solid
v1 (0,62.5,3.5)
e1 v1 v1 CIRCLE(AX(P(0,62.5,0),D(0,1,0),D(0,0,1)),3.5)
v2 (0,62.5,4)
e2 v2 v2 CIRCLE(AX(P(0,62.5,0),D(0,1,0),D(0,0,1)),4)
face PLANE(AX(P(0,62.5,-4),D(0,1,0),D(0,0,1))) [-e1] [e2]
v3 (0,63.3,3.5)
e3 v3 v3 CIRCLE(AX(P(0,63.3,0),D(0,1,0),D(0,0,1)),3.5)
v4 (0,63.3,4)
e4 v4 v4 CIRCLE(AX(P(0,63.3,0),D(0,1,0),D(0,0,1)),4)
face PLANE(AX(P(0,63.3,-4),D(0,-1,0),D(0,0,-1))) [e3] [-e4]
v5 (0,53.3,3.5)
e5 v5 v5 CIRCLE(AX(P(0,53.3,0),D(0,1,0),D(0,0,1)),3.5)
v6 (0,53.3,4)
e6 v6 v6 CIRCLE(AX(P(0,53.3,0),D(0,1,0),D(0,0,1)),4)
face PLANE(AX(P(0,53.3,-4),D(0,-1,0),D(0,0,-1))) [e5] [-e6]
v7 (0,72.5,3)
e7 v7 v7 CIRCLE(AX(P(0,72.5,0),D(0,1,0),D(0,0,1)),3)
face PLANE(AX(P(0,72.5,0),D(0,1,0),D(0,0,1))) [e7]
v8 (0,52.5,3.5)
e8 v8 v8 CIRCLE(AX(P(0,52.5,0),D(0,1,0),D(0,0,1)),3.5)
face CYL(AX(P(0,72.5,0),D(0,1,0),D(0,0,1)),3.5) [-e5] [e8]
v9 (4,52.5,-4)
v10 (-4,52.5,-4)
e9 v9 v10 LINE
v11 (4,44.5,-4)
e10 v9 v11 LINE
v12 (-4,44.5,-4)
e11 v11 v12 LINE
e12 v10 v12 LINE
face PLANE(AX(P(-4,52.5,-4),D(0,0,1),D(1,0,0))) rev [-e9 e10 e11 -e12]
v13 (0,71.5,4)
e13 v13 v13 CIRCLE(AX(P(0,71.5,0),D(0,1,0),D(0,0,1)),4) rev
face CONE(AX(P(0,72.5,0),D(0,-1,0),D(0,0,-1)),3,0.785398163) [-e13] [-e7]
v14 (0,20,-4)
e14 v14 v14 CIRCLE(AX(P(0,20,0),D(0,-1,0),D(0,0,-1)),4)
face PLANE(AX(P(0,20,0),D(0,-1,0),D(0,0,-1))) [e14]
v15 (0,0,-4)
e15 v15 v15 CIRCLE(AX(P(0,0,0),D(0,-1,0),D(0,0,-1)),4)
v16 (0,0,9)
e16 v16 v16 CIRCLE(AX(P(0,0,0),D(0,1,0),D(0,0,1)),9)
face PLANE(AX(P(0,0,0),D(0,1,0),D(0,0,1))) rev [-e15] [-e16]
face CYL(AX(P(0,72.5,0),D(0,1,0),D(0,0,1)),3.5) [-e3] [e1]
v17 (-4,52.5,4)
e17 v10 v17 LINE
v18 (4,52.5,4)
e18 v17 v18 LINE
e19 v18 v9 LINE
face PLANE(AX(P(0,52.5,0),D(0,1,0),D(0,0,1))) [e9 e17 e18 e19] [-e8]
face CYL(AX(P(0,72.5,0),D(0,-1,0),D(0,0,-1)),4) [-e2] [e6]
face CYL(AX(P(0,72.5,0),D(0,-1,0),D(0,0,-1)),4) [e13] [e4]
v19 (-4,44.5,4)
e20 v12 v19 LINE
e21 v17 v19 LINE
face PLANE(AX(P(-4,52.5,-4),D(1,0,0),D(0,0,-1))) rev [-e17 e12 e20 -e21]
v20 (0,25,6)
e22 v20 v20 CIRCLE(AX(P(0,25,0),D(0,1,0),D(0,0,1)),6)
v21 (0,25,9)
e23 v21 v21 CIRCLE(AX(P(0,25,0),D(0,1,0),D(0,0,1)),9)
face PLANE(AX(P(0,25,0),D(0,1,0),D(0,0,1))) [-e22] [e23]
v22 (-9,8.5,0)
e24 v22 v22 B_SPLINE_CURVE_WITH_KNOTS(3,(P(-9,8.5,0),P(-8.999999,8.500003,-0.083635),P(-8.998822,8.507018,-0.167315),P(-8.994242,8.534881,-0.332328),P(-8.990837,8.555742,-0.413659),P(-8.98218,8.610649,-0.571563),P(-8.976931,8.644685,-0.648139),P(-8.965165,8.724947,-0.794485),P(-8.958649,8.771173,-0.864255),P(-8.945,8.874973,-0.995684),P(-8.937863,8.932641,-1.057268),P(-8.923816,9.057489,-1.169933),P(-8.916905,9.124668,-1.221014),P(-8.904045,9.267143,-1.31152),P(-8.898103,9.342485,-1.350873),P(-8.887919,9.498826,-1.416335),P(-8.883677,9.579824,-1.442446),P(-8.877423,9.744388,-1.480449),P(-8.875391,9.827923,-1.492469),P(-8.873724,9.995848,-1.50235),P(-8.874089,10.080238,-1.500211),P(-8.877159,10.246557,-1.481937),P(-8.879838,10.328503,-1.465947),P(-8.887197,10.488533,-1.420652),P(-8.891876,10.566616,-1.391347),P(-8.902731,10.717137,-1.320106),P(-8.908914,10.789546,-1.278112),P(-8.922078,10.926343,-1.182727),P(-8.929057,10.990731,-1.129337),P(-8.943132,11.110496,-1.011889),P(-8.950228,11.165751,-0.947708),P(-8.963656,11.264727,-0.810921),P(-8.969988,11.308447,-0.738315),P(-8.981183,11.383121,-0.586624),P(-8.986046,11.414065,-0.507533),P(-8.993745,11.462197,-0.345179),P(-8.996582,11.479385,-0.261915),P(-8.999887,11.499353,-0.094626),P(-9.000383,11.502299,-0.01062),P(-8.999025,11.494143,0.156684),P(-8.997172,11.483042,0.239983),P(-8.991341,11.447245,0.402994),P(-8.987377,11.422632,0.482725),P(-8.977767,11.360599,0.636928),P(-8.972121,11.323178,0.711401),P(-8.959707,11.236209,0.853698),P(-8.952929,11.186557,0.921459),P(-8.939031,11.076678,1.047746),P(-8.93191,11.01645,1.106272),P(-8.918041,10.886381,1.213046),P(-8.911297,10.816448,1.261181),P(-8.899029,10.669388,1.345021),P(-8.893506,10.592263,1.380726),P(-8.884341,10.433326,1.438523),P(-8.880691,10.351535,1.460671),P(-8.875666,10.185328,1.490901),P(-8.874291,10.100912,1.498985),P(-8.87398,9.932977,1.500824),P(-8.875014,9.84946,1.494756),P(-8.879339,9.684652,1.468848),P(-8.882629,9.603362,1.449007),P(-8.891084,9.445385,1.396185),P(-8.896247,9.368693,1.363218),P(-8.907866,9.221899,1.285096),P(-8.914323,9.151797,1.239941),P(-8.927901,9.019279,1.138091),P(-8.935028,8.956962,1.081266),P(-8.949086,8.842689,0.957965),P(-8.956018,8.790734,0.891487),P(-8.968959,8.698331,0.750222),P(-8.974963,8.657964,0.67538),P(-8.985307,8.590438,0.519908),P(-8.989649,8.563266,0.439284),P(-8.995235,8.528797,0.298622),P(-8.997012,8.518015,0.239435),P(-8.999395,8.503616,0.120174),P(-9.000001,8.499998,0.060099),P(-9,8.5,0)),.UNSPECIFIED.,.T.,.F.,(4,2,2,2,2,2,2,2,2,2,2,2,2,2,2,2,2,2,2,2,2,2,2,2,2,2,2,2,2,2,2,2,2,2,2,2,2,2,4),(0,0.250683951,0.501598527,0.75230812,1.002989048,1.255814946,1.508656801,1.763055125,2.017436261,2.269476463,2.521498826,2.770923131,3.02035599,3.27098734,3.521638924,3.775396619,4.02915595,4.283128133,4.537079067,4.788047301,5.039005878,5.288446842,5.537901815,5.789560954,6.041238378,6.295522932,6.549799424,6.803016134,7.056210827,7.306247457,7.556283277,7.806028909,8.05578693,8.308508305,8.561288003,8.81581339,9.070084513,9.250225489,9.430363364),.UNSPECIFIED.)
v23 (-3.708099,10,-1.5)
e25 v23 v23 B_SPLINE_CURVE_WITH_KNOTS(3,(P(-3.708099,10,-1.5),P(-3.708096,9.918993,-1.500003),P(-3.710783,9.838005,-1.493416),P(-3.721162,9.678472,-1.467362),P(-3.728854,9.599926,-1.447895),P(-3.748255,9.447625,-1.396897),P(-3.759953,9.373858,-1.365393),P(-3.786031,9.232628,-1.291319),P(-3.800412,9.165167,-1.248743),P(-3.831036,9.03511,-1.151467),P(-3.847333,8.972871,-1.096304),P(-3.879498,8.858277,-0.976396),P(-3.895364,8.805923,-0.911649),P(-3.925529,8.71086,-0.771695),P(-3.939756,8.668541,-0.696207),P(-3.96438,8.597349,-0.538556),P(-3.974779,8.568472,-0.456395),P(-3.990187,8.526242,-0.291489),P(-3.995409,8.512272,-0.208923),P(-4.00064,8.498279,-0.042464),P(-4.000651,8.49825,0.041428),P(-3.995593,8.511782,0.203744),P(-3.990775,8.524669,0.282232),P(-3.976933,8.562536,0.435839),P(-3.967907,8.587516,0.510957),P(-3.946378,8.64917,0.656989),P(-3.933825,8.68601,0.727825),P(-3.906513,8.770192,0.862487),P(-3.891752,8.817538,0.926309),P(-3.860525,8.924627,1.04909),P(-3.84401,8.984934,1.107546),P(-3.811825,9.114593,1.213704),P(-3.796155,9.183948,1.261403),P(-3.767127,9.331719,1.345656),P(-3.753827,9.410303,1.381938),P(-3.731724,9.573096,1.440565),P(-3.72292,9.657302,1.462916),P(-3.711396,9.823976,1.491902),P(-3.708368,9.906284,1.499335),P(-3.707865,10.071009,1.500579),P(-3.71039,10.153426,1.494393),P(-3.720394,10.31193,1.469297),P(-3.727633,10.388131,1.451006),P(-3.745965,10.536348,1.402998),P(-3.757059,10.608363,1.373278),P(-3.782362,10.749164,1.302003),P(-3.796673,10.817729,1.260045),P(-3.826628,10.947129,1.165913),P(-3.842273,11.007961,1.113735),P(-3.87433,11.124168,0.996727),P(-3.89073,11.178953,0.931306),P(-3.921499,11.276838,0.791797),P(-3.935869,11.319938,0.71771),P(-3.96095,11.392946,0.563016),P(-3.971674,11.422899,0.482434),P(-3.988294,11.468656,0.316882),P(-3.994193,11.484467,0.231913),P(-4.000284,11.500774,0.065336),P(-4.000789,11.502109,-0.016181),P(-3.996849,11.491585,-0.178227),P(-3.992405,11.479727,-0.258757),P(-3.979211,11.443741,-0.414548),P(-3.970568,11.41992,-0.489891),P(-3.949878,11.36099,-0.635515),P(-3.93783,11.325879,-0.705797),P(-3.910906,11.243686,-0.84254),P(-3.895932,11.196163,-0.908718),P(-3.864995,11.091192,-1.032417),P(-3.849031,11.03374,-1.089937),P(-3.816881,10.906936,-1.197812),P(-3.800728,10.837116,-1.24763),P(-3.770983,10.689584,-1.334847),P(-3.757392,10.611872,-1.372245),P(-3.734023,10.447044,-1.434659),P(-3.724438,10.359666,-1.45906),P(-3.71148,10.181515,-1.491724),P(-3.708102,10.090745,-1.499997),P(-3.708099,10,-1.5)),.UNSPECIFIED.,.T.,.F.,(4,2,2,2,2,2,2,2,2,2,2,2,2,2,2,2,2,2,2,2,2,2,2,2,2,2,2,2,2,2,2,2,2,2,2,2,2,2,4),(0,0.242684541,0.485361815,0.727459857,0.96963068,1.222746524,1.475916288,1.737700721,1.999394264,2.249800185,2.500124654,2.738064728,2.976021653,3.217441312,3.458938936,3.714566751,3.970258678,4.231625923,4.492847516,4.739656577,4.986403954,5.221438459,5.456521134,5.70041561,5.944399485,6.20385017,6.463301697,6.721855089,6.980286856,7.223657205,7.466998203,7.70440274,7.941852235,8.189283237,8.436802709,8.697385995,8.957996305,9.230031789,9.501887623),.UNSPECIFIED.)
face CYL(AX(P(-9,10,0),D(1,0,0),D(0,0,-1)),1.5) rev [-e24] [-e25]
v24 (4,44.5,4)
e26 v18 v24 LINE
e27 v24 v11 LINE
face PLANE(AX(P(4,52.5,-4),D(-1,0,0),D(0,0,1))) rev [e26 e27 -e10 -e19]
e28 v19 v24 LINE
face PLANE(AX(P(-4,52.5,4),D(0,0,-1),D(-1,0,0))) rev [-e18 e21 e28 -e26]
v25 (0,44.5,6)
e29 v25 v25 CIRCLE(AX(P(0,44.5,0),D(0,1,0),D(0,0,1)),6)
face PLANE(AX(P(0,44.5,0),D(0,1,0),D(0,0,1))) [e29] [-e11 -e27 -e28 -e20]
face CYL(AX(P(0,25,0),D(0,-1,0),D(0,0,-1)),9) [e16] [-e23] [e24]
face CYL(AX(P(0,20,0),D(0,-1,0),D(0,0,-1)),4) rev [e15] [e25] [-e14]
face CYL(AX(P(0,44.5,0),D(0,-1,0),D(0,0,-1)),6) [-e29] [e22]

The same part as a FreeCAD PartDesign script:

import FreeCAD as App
import Part
import Sketcher
from FreeCAD import Vector


def edges_at(feature, points):
    """Names of the edges that pass closest to the given points."""
    edges = feature.Shape.Edges
    near = lambda p: min(range(len(edges)), key=lambda i: edges[i].distToShape(Part.Vertex(*p))[0])
    return sorted({f"Edge{near(p) + 1}" for p in points})


def add_polygon(sketch, points):
    """Adds a closed chain of lines whose ends are joined by coincident constraints."""
    first, n = sketch.GeometryCount, len(points)
    for a, b in zip(points, points[1:] + points[:1]):
        sketch.addGeometry(Part.LineSegment(App.Vector(*a, 0), App.Vector(*b, 0)), False)
    for i in range(n):
        sketch.addConstraint(Sketcher.Constraint("Coincident", first + i, 2, first + (i + 1) % n, 1))

doc = App.newDocument("Part")
params = doc.addObject("Spreadsheet::Sheet", "Params")
for row, (alias, value) in enumerate([
    ("sketch1_diameter", "18 mm"),
    ("pad1_length", "25 mm"),
    ("sketch2_diameter", "8 mm"),
    ("pocket1_length", "20 mm"),
    ("sketch3_diameter", "12 mm"),
    ("pad2_length", "19.5 mm"),
    ("sketch4_width", "8 mm"),
    ("pad3_length", "8 mm"),
    ("sketch5_diameter", "8 mm"),
    ("pad4_length", "20 mm"),
    ("sketch6_diameter", "3 mm"),
    ("chamfer_size", "1 mm"),
    ("sketch7_width", "0.8 mm"),
    ("sketch7_height", "0.5 mm"),
    ("groove_angle", "360 deg"),
], start=1):
    params.set(f"A{row}", alias)
    params.set(f"B{row}", "=" + value)
    params.setAlias(f"B{row}", alias)

body = doc.addObject("PartDesign::Body", "Body")

# Sketch on XZ plane
sketch1 = body.newObject("Sketcher::SketchObject", "Sketch")
sketch1.AttachmentSupport = (doc.getObject("XZ_Plane"), [""])
sketch1.MapMode = "FlatFace"
sketch1.addGeometry(Part.Circle(Vector(0, 0, 0), Vector(0, 0, 1), 9), False)
sketch1.addConstraint(Sketcher.Constraint("Coincident", 0, 3, -1, 1))
sketch1.addConstraint(Sketcher.Constraint("Diameter", 0, 18.0))
sketch1.setExpression("Constraints[1]", "Params.sketch1_diameter")
pad1 = body.newObject("PartDesign::Pad", "Pad")
pad1.Profile = sketch1
pad1.setExpression("Length", "Params.pad1_length")
pad1.Reversed = True

# Sketch on XZ plane
sketch2 = body.newObject("Sketcher::SketchObject", "Sketch001")
sketch2.AttachmentSupport = (doc.getObject("XZ_Plane"), [""])
sketch2.MapMode = "FlatFace"
sketch2.addGeometry(Part.Circle(Vector(0, 0, 0), Vector(0, 0, 1), 4), False)
sketch2.addConstraint(Sketcher.Constraint("Coincident", 0, 3, -1, 1))
sketch2.addConstraint(Sketcher.Constraint("Diameter", 0, 8.0))
sketch2.setExpression("Constraints[1]", "Params.sketch2_diameter")
pocket1 = body.newObject("PartDesign::Pocket", "Pocket")
pocket1.Profile = sketch2
pocket1.setExpression("Length", "Params.pocket1_length")

# Sketch on XZ plane
sketch3 = body.newObject("Sketcher::SketchObject", "Sketch002")
sketch3.AttachmentSupport = (doc.getObject("XZ_Plane"), [""])
sketch3.MapMode = "FlatFace"
sketch3.AttachmentOffset = App.Placement(Vector(0, 0, -25), App.Rotation())
sketch3.addGeometry(Part.Circle(Vector(0, 0, 0), Vector(0, 0, 1), 6), False)
sketch3.addConstraint(Sketcher.Constraint("Coincident", 0, 3, -1, 1))
sketch3.addConstraint(Sketcher.Constraint("Diameter", 0, 12.0))
sketch3.setExpression("Constraints[1]", "Params.sketch3_diameter")
pad2 = body.newObject("PartDesign::Pad", "Pad001")
pad2.Profile = sketch3
pad2.setExpression("Length", "Params.pad2_length")
pad2.Reversed = True

# Sketch on XZ plane
sketch4 = body.newObject("Sketcher::SketchObject", "Sketch003")
sketch4.AttachmentSupport = (doc.getObject("XZ_Plane"), [""])
sketch4.MapMode = "FlatFace"
sketch4.AttachmentOffset = App.Placement(Vector(0, 0, -44.5), App.Rotation())
add_polygon(sketch4, [(-4, -4), (-4, 4), (4, 4), (4, -4)])  # lines 0-3
sketch4.addConstraint(Sketcher.Constraint("Vertical", 0))
sketch4.addConstraint(Sketcher.Constraint("Horizontal", 1))
sketch4.addConstraint(Sketcher.Constraint("Vertical", 2))
sketch4.addConstraint(Sketcher.Constraint("Horizontal", 3))
sketch4.addConstraint(Sketcher.Constraint("Symmetric", 0, 2, 2, 2, -1, 1))
sketch4.addConstraint(Sketcher.Constraint("Equal", 3, 0))
sketch4.addConstraint(Sketcher.Constraint("DistanceX", 1, 1, 1, 2, 8.0))
sketch4.setExpression("Constraints[10]", "Params.sketch4_width")
pad3 = body.newObject("PartDesign::Pad", "Pad002")
pad3.Profile = sketch4
pad3.setExpression("Length", "Params.pad3_length")
pad3.Reversed = True

# Sketch on XZ plane
sketch5 = body.newObject("Sketcher::SketchObject", "Sketch004")
sketch5.AttachmentSupport = (doc.getObject("XZ_Plane"), [""])
sketch5.MapMode = "FlatFace"
sketch5.AttachmentOffset = App.Placement(Vector(0, 0, -52.5), App.Rotation())
sketch5.addGeometry(Part.Circle(Vector(0, 0, 0), Vector(0, 0, 1), 4), False)
sketch5.addConstraint(Sketcher.Constraint("Coincident", 0, 3, -1, 1))
sketch5.addConstraint(Sketcher.Constraint("Diameter", 0, 8.0))
sketch5.setExpression("Constraints[1]", "Params.sketch5_diameter")
pad4 = body.newObject("PartDesign::Pad", "Pad003")
pad4.Profile = sketch5
pad4.setExpression("Length", "Params.pad4_length")
pad4.Reversed = True

# Sketch on YZ plane
sketch6 = body.newObject("Sketcher::SketchObject", "Sketch005")
sketch6.AttachmentSupport = (doc.getObject("YZ_Plane"), [""])
sketch6.MapMode = "FlatFace"
sketch6.addGeometry(Part.Circle(Vector(10, 0, 0), Vector(0, 0, 1), 1.5), False)
sketch6.addConstraint(Sketcher.Constraint("PointOnObject", 0, 3, -1))
sketch6.addConstraint(Sketcher.Constraint("Diameter", 0, 3.0))
sketch6.addConstraint(Sketcher.Constraint("DistanceX", -1, 1, 0, 3, 10.0))
sketch6.setExpression("Constraints[1]", "Params.sketch6_diameter")
pocket2 = body.newObject("PartDesign::Pocket", "Pocket001")
pocket2.Profile = sketch6
pocket2.Type = "ThroughAll"
doc.recompute()

chamfer = body.newObject("PartDesign::Chamfer", "Chamfer")
chamfer.Base = (pocket2, edges_at(pocket2, [(0, 72.5, 4)]))
chamfer.setExpression("Size", "Params.chamfer_size")

# Sketch on YZ plane
sketch7 = body.newObject("Sketcher::SketchObject", "Sketch006")
sketch7.AttachmentSupport = (doc.getObject("YZ_Plane"), [""])
sketch7.MapMode = "FlatFace"
add_polygon(sketch7, [(63.3, -3.5), (62.5, -3.5), (62.5, -4), (63.3, -4)])  # lines 0-3
add_polygon(sketch7, [(53.3, -3.5), (52.5, -3.5), (52.5, -4), (53.3, -4)])  # lines 4-7
sketch7.addConstraint(Sketcher.Constraint("Horizontal", 0))
sketch7.addConstraint(Sketcher.Constraint("Vertical", 1))
sketch7.addConstraint(Sketcher.Constraint("Horizontal", 2))
sketch7.addConstraint(Sketcher.Constraint("Vertical", 3))
sketch7.addConstraint(Sketcher.Constraint("Horizontal", 4))
sketch7.addConstraint(Sketcher.Constraint("Vertical", 5))
sketch7.addConstraint(Sketcher.Constraint("Horizontal", 6))
sketch7.addConstraint(Sketcher.Constraint("Vertical", 7))
sketch7.addConstraint(Sketcher.Constraint("Horizontal", 3, 2, 4, 2))
sketch7.addConstraint(Sketcher.Constraint("Horizontal", 2, 2, 5, 2))
sketch7.addConstraint(Sketcher.Constraint("Equal", 2, 4))
sketch7.addConstraint(Sketcher.Constraint("DistanceX", 0, 2, 0, 1, 0.8))
sketch7.addConstraint(Sketcher.Constraint("DistanceY", 1, 2, 1, 1, 0.5))
sketch7.addConstraint(Sketcher.Constraint("DistanceY", 1, 2, -1, 1, 4.0))
sketch7.addConstraint(Sketcher.Constraint("DistanceX", 4, 2, 0, 2, 10.0))
sketch7.addConstraint(Sketcher.Constraint("DistanceX", -1, 1, 0, 2, 62.5))
sketch7.setExpression("Constraints[19]", "Params.sketch7_width")
sketch7.setExpression("Constraints[20]", "Params.sketch7_height")
groove = body.newObject("PartDesign::Groove", "Groove")
groove.Profile = sketch7
groove.ReferenceAxis = (sketch7, ["H_Axis"])
groove.setExpression("Angle", "Params.groove_angle")

doc.recompute()
